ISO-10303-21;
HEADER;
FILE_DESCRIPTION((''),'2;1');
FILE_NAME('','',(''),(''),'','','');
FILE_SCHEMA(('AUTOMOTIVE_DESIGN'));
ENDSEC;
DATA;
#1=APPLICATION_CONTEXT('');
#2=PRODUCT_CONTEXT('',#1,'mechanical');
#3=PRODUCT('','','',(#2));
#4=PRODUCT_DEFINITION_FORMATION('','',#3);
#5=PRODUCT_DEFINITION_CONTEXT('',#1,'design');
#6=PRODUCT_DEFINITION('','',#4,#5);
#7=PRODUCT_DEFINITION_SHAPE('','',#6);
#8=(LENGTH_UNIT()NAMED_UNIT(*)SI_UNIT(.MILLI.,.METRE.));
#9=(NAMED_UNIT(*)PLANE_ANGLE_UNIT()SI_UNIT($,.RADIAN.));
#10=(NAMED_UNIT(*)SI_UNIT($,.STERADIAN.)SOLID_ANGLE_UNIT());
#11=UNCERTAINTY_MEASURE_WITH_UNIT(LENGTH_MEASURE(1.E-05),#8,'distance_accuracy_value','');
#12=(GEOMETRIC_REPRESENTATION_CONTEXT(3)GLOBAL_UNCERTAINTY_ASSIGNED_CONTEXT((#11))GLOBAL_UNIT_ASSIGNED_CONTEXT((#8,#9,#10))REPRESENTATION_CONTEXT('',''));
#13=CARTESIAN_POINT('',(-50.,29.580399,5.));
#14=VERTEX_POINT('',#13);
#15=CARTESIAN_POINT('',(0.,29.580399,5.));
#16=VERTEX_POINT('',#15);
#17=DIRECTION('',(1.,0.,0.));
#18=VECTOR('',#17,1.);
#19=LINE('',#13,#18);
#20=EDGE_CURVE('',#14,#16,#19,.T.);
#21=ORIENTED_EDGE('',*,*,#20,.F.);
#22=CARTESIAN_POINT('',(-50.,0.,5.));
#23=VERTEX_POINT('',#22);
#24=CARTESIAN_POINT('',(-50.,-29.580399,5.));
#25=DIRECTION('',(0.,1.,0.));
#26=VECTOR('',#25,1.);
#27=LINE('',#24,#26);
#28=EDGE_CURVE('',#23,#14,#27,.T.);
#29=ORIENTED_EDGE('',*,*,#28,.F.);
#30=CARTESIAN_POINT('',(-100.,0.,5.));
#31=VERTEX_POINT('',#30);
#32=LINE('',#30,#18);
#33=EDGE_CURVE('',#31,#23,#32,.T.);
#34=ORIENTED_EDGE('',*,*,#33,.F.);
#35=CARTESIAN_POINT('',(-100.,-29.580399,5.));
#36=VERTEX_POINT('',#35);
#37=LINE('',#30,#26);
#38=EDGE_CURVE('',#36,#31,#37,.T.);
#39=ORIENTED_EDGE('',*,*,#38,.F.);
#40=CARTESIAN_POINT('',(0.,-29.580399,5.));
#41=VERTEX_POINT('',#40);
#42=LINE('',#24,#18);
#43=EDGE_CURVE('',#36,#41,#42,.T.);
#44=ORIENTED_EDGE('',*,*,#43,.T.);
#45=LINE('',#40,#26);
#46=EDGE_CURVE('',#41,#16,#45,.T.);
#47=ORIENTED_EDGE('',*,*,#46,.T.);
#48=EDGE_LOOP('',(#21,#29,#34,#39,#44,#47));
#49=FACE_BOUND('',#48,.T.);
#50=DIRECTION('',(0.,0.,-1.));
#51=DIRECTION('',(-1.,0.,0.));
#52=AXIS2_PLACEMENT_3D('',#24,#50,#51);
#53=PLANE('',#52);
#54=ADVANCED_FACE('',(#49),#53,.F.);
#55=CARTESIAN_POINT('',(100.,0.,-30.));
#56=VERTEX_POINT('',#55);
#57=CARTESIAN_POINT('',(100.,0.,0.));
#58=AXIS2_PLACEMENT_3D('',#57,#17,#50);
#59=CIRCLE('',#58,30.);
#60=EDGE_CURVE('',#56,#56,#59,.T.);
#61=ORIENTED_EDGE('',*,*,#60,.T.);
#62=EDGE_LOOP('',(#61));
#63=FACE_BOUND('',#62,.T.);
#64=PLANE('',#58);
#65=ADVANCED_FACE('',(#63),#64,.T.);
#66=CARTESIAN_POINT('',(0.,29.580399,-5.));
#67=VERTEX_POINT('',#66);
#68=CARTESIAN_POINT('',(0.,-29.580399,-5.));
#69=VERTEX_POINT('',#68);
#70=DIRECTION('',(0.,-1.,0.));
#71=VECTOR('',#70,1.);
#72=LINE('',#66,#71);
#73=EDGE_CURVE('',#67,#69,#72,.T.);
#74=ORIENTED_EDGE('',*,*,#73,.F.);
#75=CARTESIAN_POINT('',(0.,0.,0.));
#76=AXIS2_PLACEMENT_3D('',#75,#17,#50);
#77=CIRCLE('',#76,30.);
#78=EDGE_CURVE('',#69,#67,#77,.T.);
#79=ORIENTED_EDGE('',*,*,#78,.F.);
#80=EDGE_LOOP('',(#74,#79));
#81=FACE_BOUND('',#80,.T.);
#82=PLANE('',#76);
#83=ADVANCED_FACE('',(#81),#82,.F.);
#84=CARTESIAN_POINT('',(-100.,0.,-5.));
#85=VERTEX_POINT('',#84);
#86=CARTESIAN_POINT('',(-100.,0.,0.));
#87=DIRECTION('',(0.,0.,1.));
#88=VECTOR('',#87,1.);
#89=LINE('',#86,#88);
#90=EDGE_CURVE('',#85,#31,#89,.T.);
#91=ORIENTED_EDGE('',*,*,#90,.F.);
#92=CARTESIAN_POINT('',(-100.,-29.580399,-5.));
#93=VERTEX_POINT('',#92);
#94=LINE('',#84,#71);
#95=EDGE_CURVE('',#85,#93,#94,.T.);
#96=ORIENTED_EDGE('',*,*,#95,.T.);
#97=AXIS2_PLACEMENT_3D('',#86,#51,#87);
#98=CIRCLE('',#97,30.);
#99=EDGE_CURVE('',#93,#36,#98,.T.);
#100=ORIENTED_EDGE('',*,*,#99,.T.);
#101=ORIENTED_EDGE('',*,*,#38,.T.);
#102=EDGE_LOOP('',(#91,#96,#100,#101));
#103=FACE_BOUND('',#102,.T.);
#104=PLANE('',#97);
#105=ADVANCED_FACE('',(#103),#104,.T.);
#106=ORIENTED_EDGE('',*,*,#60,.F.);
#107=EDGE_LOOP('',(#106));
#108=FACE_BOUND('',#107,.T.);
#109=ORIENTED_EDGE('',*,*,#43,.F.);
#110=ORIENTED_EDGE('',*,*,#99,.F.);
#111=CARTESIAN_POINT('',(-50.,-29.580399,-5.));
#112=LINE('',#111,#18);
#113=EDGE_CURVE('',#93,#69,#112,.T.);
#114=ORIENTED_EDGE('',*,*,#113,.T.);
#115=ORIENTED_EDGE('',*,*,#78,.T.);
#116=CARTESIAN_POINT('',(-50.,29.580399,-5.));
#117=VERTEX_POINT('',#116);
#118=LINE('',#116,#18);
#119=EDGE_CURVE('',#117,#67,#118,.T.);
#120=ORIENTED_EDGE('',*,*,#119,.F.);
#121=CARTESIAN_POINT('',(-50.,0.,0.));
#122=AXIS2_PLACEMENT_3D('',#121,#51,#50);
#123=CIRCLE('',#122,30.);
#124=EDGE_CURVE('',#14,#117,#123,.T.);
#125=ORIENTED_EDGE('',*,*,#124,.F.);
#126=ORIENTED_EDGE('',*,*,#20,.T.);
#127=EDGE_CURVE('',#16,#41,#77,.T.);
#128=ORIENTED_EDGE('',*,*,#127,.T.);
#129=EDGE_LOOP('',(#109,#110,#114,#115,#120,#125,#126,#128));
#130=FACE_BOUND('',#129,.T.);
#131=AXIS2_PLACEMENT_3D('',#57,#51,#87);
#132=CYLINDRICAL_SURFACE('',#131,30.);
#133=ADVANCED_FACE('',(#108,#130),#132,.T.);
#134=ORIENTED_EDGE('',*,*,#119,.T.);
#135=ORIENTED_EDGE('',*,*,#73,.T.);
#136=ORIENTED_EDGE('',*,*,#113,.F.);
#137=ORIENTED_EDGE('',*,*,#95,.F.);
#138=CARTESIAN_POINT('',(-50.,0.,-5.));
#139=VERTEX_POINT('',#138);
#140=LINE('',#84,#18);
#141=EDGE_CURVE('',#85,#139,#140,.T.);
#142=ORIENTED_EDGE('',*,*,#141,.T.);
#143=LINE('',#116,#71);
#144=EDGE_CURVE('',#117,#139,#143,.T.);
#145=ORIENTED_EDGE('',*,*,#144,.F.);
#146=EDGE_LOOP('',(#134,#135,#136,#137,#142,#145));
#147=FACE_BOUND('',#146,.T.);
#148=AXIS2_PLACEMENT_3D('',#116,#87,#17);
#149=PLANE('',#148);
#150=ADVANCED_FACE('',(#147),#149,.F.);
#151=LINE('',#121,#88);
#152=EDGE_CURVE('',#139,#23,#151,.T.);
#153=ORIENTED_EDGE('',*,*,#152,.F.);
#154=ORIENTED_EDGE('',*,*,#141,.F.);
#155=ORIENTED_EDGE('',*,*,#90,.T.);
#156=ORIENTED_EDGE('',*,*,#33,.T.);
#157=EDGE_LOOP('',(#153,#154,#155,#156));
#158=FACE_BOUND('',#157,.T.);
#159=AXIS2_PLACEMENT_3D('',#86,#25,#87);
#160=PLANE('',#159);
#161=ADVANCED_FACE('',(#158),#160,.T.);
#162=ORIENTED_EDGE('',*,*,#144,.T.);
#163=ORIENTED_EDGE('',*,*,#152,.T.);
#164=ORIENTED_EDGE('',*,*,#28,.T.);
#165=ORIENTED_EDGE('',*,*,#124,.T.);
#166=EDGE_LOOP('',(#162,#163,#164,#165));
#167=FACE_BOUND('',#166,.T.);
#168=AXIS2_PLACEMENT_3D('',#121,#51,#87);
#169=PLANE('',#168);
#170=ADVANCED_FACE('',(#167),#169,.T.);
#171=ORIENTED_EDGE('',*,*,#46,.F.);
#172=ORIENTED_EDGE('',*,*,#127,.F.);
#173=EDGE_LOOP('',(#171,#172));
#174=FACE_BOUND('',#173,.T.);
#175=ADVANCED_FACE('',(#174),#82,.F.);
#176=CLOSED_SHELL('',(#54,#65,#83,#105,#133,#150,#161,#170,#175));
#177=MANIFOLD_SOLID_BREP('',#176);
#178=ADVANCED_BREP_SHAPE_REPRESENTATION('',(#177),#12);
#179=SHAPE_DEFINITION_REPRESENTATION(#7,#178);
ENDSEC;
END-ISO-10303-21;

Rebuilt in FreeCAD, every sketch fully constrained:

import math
import FreeCAD as App
import Part
import Sketcher

V = App.Vector

doc = App.newDocument("Part")
body = doc.addObject("PartDesign::Body", "Body")

# Sketch on YZ plane
sketch1 = doc.addObject("Sketcher::SketchObject", "Sketch")
body.addObject(sketch1)
sketch1.AttachmentSupport = (doc.YZ_Plane, [""])
sketch1.MapMode = "FlatFace"
sketch1.addGeometry(Part.Circle(V(0, 0, 0), V(0, 0, 1), 30), False)
sketch1.addConstraint([
    Sketcher.Constraint("Coincident", 0, 3, -1, 1),
    Sketcher.Constraint("Diameter", 0, 60.0),
])
pad1 = doc.addObject("PartDesign::Pad", "Pad")
body.addObject(pad1)
pad1.Profile = sketch1
pad1.Length = 100

# Sketch on YZ plane
sketch2 = doc.addObject("Sketcher::SketchObject", "Sketch001")
body.addObject(sketch2)
sketch2.AttachmentSupport = (doc.YZ_Plane, [""])
sketch2.MapMode = "FlatFace"
sketch2.AttachmentOffset = App.Placement(V(0, 0, -50), App.Rotation())
sketch2.addGeometry([
    Part.LineSegment(V(-30, 5, 0), V(30, 5, 0)),
    Part.ArcOfCircle(Part.Circle(V(0, 0, 0), V(0, 0, 1), 30), math.radians(-9.59), math.radians(9.59)),
    Part.LineSegment(V(30, -5, 0), V(-30, -5, 0)),
    Part.ArcOfCircle(Part.Circle(V(0, 0, 0), V(0, 0, 1), 30), math.radians(170.41), math.radians(189.59)),
], False)
sketch2.addConstraint([
    Sketcher.Constraint("Coincident", 0, 2, 1, 2),
    Sketcher.Constraint("Coincident", 1, 1, 2, 1),
    Sketcher.Constraint("Coincident", 2, 2, 3, 2),
    Sketcher.Constraint("Coincident", 3, 1, 0, 1),
    Sketcher.Constraint("Horizontal", 0),
    Sketcher.Constraint("Horizontal", 2),
    Sketcher.Constraint("Coincident", 1, 3, -1, 1),
    Sketcher.Constraint("Coincident", 3, 3, -1, 1),
    Sketcher.Constraint("Equal", 1, 3),
    Sketcher.Constraint("Vertical", 0, 2, 1, 1),
    Sketcher.Constraint("Radius", 1, 30.0),
    Sketcher.Constraint("DistanceY", -1, 1, 0, 2, 5.0),
])
pad2 = doc.addObject("PartDesign::Pad", "Pad001")
body.addObject(pad2)
pad2.Profile = sketch2
pad2.Length = 50

# Sketch on YZ plane
sketch3 = doc.addObject("Sketcher::SketchObject", "Sketch002")
body.addObject(sketch3)
sketch3.AttachmentSupport = (doc.YZ_Plane, [""])
sketch3.MapMode = "FlatFace"
sketch3.AttachmentOffset = App.Placement(V(0, 0, -100), App.Rotation())
sketch3.addGeometry([
    Part.LineSegment(V(0, 5, 0), V(0, -5, 0)),
    Part.LineSegment(V(0, -5, 0), V(-30, -5, 0)),
    Part.ArcOfCircle(Part.Circle(V(0, 0, 0), V(0, 0, 1), 30), math.radians(170.41), math.radians(189.59)),
    Part.LineSegment(V(-30, 5, 0), V(0, 5, 0)),
], False)
sketch3.addConstraint([
    Sketcher.Constraint("Coincident", 0, 2, 1, 1),
    Sketcher.Constraint("Coincident", 1, 2, 2, 2),
    Sketcher.Constraint("Coincident", 2, 1, 3, 1),
    Sketcher.Constraint("Coincident", 3, 2, 0, 1),
    Sketcher.Constraint("Vertical", 0),
    Sketcher.Constraint("Horizontal", 1),
    Sketcher.Constraint("Horizontal", 3),
    Sketcher.Constraint("Coincident", 2, 3, -1, 1),
    Sketcher.Constraint("Symmetric", 0, 2, 3, 2, -1, 1),
    Sketcher.Constraint("Radius", 2, 30.0),
    Sketcher.Constraint("DistanceY", 0, 2, 0, 1, 10.0),
])
pad3 = doc.addObject("PartDesign::Pad", "Pad002")
body.addObject(pad3)
pad3.Profile = sketch3
pad3.Length = 50

doc.recompute()
